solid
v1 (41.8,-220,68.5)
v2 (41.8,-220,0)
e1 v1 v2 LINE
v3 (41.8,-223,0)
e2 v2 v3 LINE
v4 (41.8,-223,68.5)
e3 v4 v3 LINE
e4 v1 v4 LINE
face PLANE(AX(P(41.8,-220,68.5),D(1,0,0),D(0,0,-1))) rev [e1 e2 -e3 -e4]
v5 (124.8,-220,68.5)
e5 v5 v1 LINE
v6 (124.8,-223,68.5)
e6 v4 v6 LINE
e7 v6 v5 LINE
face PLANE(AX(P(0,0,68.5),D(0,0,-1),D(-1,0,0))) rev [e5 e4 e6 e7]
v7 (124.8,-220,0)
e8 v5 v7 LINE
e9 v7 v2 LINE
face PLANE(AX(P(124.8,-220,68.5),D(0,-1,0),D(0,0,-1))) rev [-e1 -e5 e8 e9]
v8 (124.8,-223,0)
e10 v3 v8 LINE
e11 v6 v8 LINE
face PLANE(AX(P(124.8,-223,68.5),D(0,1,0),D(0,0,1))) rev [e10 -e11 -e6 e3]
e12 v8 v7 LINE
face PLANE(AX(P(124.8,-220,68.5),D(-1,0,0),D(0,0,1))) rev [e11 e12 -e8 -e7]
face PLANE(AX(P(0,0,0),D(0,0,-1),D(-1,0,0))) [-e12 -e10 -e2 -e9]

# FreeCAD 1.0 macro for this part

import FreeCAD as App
import Part
import Sketcher

V = App.Vector

doc = App.newDocument("Part")
body = doc.addObject("PartDesign::Body", "Body")

# Sketch on XY plane
sketch1 = body.newObject("Sketcher::SketchObject", "Sketch")
sketch1.AttachmentSupport = (doc.getObject("XY_Plane"), [""])
sketch1.MapMode = "FlatFace"
sketch1.addGeometry(Part.LineSegment(V(41.8, -220, 0), V(41.8, -223, 0)), False)
sketch1.addGeometry(Part.LineSegment(V(41.8, -223, 0), V(124.8, -223, 0)), False)
sketch1.addGeometry(Part.LineSegment(V(124.8, -223, 0), V(124.8, -220, 0)), False)
sketch1.addGeometry(Part.LineSegment(V(124.8, -220, 0), V(41.8, -220, 0)), False)
sketch1.addConstraint(Sketcher.Constraint("Coincident", 0, 2, 1, 1))
sketch1.addConstraint(Sketcher.Constraint("Coincident", 1, 2, 2, 1))
sketch1.addConstraint(Sketcher.Constraint("Coincident", 2, 2, 3, 1))
sketch1.addConstraint(Sketcher.Constraint("Coincident", 3, 2, 0, 1))
sketch1.addConstraint(Sketcher.Constraint("Vertical", 0))
sketch1.addConstraint(Sketcher.Constraint("Horizontal", 1))
sketch1.addConstraint(Sketcher.Constraint("Vertical", 2))
sketch1.addConstraint(Sketcher.Constraint("Horizontal", 3))
sketch1.addConstraint(Sketcher.Constraint("DistanceX", 1, 1, 1, 2, 83.0))
sketch1.addConstraint(Sketcher.Constraint("DistanceY", 0, 2, 0, 1, 3.0))
sketch1.addConstraint(Sketcher.Constraint("DistanceY", 0, 2, -1, 1, 223.0))
sketch1.addConstraint(Sketcher.Constraint("DistanceX", -1, 1, 0, 2, 41.8))
pad1 = body.newObject("PartDesign::Pad", "Pad")
pad1.Profile = sketch1
pad1.Length = 68.5

doc.recompute()
